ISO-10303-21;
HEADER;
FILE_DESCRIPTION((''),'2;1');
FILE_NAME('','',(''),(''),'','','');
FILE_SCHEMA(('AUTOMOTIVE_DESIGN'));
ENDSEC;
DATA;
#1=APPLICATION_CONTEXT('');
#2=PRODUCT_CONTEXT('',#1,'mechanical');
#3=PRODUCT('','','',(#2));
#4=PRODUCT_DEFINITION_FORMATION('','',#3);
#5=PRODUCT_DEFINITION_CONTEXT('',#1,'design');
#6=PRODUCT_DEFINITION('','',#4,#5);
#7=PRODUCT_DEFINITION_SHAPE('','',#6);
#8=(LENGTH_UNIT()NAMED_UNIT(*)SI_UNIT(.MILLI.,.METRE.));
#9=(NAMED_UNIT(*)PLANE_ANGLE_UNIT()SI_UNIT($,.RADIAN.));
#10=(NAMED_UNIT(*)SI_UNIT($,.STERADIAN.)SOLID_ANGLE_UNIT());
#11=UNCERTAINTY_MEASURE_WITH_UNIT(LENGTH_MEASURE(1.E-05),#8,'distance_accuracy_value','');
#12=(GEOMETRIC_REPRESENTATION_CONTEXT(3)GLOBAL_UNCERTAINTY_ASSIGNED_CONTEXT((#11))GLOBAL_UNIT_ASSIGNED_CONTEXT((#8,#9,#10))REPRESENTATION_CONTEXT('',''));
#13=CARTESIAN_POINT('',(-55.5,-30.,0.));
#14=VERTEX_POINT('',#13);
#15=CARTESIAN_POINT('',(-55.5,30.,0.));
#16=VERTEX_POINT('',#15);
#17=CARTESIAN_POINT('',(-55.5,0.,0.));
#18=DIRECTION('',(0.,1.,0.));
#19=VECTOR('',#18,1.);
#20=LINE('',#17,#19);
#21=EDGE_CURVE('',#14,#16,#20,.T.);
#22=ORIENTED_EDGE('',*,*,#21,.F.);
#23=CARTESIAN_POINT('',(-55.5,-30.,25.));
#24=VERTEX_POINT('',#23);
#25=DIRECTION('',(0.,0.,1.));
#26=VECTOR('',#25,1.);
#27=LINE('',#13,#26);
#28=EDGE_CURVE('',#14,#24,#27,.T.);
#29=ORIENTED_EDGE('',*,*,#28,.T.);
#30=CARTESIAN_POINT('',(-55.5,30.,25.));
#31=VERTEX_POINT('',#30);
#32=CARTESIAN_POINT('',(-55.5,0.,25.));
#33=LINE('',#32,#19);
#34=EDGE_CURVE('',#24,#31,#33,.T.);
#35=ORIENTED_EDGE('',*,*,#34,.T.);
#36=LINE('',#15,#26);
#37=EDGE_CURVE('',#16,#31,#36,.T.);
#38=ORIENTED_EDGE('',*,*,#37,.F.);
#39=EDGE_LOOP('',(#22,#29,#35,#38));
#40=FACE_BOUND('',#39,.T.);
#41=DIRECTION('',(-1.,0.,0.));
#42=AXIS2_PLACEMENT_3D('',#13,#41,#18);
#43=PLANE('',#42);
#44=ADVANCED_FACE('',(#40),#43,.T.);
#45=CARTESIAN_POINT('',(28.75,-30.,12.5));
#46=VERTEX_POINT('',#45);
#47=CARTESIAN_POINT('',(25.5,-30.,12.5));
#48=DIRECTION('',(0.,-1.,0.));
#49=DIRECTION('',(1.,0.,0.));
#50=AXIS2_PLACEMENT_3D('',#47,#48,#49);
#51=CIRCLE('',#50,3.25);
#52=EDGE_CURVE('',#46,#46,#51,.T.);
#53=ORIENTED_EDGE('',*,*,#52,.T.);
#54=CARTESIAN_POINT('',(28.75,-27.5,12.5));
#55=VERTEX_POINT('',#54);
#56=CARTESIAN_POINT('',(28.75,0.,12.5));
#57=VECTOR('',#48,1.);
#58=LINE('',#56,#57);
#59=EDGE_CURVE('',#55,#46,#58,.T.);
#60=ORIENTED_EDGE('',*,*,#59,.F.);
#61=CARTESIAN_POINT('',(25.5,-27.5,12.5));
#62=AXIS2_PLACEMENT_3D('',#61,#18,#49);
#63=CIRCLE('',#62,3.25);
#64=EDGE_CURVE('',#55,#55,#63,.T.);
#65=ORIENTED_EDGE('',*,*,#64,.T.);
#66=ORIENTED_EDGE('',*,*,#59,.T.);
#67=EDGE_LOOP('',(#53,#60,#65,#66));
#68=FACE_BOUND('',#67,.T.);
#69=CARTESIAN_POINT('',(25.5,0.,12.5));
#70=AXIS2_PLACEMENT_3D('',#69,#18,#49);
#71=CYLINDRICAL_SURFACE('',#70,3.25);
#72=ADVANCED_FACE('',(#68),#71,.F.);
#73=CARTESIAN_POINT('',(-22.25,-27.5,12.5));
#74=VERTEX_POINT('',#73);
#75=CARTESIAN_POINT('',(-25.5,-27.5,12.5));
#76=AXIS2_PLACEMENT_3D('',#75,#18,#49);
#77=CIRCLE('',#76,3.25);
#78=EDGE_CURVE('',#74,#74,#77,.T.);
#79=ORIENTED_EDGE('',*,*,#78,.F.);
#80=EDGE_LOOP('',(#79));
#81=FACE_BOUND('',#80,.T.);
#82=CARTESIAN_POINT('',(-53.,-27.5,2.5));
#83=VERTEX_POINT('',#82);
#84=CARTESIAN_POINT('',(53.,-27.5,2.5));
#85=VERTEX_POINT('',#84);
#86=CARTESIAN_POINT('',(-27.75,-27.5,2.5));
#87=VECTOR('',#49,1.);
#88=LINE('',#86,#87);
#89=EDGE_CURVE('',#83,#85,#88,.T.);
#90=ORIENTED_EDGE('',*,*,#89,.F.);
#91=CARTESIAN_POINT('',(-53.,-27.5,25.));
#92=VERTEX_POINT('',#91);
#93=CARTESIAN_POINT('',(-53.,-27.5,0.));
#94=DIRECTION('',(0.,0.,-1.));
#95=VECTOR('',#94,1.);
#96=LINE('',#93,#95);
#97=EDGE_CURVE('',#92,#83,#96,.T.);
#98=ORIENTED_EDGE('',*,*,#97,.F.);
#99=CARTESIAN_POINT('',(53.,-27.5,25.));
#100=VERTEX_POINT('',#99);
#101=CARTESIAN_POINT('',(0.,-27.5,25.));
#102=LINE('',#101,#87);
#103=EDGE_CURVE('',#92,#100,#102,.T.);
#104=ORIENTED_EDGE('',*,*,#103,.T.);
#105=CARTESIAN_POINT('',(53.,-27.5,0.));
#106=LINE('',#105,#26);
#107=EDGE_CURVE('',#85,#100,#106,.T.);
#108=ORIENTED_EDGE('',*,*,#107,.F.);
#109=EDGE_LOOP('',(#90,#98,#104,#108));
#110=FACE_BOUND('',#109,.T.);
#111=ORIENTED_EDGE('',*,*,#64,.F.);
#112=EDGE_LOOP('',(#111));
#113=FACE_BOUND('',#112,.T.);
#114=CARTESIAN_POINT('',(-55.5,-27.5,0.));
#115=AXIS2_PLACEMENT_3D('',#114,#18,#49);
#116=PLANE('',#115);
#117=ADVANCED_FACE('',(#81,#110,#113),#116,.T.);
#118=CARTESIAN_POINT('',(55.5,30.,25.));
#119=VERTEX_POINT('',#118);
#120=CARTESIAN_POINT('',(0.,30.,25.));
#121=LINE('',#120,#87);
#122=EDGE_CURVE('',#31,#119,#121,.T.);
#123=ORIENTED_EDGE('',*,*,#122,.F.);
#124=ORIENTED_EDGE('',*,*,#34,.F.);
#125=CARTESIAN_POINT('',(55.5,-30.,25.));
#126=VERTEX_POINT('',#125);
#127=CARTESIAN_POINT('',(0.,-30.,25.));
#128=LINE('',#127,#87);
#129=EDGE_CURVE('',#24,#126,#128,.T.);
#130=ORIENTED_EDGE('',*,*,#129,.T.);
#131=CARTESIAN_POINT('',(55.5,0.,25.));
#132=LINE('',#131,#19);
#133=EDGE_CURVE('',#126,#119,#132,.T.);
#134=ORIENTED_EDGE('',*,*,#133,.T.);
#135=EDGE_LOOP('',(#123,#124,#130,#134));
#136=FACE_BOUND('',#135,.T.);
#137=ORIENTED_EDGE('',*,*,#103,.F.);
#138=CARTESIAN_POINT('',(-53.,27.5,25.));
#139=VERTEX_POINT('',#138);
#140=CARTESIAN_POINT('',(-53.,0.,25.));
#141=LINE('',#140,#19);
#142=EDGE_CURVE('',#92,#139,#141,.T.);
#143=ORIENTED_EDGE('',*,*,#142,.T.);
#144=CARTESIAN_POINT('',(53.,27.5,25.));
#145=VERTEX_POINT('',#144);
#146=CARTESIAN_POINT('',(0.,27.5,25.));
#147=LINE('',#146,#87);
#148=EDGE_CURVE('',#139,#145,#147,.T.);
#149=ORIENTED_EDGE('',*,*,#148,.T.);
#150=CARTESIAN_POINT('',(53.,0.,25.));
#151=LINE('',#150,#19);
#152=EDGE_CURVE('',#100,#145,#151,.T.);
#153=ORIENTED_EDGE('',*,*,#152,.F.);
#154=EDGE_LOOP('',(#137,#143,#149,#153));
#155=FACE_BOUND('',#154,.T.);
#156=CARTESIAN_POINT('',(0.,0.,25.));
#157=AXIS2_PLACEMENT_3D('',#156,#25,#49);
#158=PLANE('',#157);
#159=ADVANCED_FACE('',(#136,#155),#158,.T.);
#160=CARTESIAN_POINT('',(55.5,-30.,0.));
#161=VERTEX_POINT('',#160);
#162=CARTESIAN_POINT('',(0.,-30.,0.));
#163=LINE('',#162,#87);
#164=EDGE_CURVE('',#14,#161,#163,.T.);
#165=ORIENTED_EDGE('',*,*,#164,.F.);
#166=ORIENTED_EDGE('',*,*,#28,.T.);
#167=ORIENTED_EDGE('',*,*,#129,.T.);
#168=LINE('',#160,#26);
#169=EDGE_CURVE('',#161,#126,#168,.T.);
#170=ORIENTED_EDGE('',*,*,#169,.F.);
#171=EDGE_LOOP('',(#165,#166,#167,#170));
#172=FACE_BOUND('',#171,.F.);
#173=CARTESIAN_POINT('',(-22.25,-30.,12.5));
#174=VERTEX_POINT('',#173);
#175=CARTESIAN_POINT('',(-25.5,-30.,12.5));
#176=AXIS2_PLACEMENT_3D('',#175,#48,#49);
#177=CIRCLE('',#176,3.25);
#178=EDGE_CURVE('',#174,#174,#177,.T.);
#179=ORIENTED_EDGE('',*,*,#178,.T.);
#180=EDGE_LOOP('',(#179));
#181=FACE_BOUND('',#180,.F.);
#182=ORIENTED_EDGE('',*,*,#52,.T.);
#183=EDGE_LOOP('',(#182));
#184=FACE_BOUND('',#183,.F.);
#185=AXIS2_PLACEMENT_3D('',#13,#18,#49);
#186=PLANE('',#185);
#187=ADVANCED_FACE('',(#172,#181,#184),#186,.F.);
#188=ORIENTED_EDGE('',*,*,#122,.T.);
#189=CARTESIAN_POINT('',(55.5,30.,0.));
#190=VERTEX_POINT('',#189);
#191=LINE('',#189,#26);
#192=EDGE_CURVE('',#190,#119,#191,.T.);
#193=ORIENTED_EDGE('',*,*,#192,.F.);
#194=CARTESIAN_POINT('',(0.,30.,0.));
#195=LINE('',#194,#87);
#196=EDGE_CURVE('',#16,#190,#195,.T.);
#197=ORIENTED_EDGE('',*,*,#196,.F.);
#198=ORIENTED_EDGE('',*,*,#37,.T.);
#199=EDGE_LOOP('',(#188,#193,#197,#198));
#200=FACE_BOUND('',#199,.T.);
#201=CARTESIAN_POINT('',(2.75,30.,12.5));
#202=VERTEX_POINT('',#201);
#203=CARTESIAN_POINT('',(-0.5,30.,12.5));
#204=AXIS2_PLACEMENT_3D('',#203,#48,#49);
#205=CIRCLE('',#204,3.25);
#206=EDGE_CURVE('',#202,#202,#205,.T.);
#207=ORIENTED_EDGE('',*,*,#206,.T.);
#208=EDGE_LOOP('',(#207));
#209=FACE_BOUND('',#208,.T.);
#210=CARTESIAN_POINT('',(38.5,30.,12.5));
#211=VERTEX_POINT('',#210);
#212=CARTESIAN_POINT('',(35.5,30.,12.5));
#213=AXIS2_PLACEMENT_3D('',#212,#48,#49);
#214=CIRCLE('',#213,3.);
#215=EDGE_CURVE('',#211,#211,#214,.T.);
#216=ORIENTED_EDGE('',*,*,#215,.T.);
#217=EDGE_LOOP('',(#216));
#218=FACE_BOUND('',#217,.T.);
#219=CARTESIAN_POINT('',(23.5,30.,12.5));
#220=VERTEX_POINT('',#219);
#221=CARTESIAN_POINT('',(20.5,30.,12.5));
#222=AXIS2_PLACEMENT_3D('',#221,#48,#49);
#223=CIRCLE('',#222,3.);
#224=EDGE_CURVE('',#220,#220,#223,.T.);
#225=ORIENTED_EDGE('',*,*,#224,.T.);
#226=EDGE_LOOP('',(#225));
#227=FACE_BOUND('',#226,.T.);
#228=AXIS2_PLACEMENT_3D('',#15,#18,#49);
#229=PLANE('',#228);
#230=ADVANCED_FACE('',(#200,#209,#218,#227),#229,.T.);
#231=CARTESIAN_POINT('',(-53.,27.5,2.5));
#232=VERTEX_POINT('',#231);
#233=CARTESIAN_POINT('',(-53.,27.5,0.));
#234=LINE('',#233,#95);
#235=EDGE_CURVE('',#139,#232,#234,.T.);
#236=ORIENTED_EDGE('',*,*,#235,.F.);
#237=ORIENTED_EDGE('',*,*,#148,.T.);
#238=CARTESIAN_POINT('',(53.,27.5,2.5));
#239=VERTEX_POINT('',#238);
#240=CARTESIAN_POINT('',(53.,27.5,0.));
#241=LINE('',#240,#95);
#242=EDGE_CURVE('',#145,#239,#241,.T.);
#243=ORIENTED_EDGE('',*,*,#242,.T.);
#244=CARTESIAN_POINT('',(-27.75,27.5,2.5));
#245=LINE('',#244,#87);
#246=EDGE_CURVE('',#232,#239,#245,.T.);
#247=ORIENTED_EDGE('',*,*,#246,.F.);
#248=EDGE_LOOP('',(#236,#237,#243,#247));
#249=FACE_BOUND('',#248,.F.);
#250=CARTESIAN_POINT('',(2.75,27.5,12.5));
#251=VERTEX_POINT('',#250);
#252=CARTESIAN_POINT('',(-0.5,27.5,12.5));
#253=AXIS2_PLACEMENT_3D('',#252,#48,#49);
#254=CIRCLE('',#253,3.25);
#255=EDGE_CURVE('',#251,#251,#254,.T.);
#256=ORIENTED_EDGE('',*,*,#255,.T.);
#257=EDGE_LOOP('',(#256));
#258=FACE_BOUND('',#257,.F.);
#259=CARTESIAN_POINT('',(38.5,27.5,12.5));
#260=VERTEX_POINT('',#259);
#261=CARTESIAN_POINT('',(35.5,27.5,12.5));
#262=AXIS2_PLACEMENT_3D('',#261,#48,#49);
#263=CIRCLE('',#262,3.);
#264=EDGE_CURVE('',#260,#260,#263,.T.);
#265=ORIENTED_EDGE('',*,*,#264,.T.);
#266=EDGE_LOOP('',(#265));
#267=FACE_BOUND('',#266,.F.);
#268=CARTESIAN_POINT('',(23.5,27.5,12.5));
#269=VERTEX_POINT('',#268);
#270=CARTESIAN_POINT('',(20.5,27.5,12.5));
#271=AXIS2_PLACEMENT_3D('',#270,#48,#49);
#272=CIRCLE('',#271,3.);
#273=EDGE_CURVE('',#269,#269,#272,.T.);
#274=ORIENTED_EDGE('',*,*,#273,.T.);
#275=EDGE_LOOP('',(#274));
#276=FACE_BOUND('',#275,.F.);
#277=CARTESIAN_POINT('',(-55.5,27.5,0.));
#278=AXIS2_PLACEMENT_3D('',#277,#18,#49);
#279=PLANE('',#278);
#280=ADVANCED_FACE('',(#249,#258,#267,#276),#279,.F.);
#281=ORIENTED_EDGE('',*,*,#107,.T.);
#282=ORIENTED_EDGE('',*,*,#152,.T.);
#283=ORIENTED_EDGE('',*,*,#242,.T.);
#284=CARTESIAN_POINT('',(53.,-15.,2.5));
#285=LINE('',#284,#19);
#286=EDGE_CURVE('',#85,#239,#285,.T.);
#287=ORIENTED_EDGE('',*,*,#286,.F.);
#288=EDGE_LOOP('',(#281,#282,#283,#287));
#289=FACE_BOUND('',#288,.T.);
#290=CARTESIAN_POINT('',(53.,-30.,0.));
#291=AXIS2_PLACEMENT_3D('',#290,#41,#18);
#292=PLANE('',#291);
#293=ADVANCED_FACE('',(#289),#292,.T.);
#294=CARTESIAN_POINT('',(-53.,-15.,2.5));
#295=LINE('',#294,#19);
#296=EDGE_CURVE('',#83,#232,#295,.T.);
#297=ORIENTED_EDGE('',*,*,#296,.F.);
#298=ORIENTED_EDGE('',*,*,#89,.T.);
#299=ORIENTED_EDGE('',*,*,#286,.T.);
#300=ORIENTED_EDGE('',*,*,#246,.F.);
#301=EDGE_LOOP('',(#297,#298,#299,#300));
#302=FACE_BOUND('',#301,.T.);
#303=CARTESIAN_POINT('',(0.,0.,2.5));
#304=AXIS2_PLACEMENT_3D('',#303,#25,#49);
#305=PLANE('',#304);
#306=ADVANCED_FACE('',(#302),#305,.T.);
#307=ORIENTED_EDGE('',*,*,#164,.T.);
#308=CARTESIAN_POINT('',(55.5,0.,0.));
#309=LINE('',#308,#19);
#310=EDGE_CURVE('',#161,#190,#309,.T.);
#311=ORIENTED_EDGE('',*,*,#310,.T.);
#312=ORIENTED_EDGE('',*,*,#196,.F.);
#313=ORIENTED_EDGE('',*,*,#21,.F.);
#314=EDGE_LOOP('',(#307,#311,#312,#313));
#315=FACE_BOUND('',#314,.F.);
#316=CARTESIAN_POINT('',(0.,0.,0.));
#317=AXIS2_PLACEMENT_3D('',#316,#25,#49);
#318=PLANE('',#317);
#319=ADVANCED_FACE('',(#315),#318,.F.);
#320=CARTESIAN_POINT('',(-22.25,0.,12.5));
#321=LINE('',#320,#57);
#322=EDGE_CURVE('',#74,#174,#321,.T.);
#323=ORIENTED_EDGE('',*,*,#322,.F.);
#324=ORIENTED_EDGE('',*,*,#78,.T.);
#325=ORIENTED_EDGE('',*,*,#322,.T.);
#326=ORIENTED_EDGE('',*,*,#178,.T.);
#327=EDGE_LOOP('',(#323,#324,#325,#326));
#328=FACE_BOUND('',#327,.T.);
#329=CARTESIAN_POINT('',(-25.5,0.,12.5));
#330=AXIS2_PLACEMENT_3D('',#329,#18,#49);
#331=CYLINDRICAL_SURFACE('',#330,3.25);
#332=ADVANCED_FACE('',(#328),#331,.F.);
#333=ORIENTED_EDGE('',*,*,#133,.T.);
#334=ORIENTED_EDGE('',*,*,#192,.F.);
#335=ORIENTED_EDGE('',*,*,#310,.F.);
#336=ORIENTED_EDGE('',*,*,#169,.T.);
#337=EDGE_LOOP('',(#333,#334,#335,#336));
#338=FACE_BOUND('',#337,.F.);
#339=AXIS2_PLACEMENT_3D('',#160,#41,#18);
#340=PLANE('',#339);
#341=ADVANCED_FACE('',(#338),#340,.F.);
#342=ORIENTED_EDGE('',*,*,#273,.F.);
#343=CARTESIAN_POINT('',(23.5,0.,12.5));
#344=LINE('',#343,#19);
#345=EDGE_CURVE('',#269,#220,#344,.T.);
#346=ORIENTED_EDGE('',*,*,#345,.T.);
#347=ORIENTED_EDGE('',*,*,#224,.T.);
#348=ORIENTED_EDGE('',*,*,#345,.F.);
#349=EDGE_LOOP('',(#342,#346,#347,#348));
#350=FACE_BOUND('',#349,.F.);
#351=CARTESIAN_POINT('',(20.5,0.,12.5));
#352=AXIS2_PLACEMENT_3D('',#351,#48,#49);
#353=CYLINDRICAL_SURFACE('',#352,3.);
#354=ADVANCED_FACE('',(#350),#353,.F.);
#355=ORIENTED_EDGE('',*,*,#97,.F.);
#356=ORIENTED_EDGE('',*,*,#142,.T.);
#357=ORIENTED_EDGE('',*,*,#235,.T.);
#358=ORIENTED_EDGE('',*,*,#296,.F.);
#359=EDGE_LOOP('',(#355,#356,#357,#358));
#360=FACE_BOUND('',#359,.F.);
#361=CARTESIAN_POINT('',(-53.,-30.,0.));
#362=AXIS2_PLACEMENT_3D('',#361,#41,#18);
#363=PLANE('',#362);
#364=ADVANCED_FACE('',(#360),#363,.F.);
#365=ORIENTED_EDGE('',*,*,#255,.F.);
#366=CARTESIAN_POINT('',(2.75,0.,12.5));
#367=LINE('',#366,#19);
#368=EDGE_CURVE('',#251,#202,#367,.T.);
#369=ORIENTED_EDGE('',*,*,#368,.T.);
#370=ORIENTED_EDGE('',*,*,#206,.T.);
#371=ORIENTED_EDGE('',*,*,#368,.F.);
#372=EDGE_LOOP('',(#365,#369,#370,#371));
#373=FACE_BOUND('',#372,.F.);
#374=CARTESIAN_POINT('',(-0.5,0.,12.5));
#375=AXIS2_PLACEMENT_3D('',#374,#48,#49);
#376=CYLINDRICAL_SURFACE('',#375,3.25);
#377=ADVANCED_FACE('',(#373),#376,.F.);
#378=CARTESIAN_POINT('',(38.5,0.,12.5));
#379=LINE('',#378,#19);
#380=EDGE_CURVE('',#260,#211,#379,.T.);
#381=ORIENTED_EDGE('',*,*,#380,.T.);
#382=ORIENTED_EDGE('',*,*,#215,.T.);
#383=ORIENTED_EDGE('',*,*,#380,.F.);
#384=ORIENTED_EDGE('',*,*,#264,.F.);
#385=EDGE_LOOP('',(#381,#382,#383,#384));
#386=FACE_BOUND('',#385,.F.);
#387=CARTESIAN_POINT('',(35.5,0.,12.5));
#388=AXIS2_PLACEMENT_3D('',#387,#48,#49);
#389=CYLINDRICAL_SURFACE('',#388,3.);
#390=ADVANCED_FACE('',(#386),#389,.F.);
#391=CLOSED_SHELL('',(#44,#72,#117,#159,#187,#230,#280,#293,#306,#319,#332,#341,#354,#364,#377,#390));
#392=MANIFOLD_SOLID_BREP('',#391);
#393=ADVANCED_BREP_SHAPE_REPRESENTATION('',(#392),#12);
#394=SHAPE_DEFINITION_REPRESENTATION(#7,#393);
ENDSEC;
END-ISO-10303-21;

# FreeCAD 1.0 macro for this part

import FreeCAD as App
import Part
import Sketcher

V = App.Vector
Q = App.Units.Quantity


def faces_at(feature, points):
    """Names of the faces that lie closest to the given points."""
    faces = feature.Shape.Faces
    near = lambda p: min(range(len(faces)), key=lambda i: faces[i].distToShape(Part.Vertex(*p))[0])
    return sorted({f"Face{near(p) + 1}" for p in points})


def add_polygon(sketch, points):
    """Adds a closed chain of lines whose ends are joined by coincident constraints."""
    first, n = sketch.GeometryCount, len(points)
    for a, b in zip(points, points[1:] + points[:1]):
        sketch.addGeometry(Part.LineSegment(App.Vector(*a, 0), App.Vector(*b, 0)), False)
    for i in range(n):
        sketch.addConstraint(Sketcher.Constraint("Coincident", first + i, 2, first + (i + 1) % n, 1))

doc = App.newDocument("Part")
body = doc.addObject("PartDesign::Body", "Body")

# Sketch on XY plane
sketch1 = body.newObject("Sketcher::SketchObject", "Sketch")
sketch1.AttachmentSupport = (doc.getObject("XY_Plane"), [""])
sketch1.MapMode = "FlatFace"
add_polygon(sketch1, [(-56, 30), (-56, -30), (56, -30), (56, 30)])  # lines 0-3
sketch1.addConstraint(Sketcher.Constraint("Vertical", 0))
sketch1.addConstraint(Sketcher.Constraint("Horizontal", 1))
sketch1.addConstraint(Sketcher.Constraint("Vertical", 2))
sketch1.addConstraint(Sketcher.Constraint("Horizontal", 3))
sketch1.addConstraint(Sketcher.Constraint("Symmetric", 0, 2, 2, 2, -1, 1))
sketch1.addConstraint(Sketcher.Constraint("DistanceX", 1, 1, 1, 2, Q("111 mm")))
sketch1.addConstraint(Sketcher.Constraint("DistanceY", 0, 2, 0, 1, Q("60 mm")))
pad1 = body.newObject("PartDesign::Pad", "Pad")
pad1.Profile = sketch1
pad1.Length = 25
doc.recompute()

thickness = body.newObject("PartDesign::Thickness", "Thickness")
thickness.Base = (pad1, faces_at(pad1, [(0, 0, 25)]))
thickness.Value = 2.5
thickness.Reversed = True
thickness.Join = "Arc"

# Sketch on XZ plane
sketch2 = body.newObject("Sketcher::SketchObject", "Sketch001")
sketch2.AttachmentSupport = (doc.getObject("XZ_Plane"), [""])
sketch2.MapMode = "FlatFace"
sketch2.addGeometry(Part.Circle(V(-25.5, 12.5, 0), V(0, 0, 1), 3.2), False)
sketch2.addGeometry(Part.Circle(V(25.5, 12.5, 0), V(0, 0, 1), 3.2), False)
sketch2.addConstraint(Sketcher.Constraint("Equal", 0, 1))
sketch2.addConstraint(Sketcher.Constraint("Symmetric", 0, 3, 1, 3, -2))
sketch2.addConstraint(Sketcher.Constraint("Diameter", 0, Q("6.5 mm")))
sketch2.addConstraint(Sketcher.Constraint("DistanceX", 0, 3, 1, 3, Q("51 mm")))
sketch2.addConstraint(Sketcher.Constraint("DistanceY", -1, 1, 0, 3, Q("12.5 mm")))
pocket1 = body.newObject("PartDesign::Pocket", "Pocket")
pocket1.Profile = sketch2
pocket1.Type = "ThroughAll"
pocket1.Reversed = True

# Sketch on XZ plane
sketch3 = body.newObject("Sketcher::SketchObject", "Sketch002")
sketch3.AttachmentSupport = (doc.getObject("XZ_Plane"), [""])
sketch3.MapMode = "FlatFace"
sketch3.addGeometry(Part.Circle(V(-0.5, 12.5, 0), V(0, 0, 1), 3.2), False)
sketch3.addGeometry(Part.Circle(V(20.5, 12.5, 0), V(0, 0, 1), 3), False)
sketch3.addGeometry(Part.Circle(V(35.5, 12.5, 0), V(0, 0, 1), 3), False)
sketch3.addConstraint(Sketcher.Constraint("Equal", 1, 2))
sketch3.addConstraint(Sketcher.Constraint("Horizontal", 0, 3, 1, 3))
sketch3.addConstraint(Sketcher.Constraint("Horizontal", 1, 3, 2, 3))
sketch3.addConstraint(Sketcher.Constraint("Diameter", 1, Q("6 mm")))
sketch3.addConstraint(Sketcher.Constraint("Diameter", 0, Q("6.5 mm")))
sketch3.addConstraint(Sketcher.Constraint("DistanceX", 0, 3, 1, 3, Q("21 mm")))
sketch3.addConstraint(Sketcher.Constraint("DistanceX", 1, 3, 2, 3, Q("15 mm")))
sketch3.addConstraint(Sketcher.Constraint("DistanceX", 0, 3, -1, 1, Q("0.5 mm")))
sketch3.addConstraint(Sketcher.Constraint("DistanceY", -1, 1, 0, 3, Q("12.5 mm")))
pocket2 = body.newObject("PartDesign::Pocket", "Pocket001")
pocket2.Profile = sketch3
pocket2.Type = "ThroughAll"

doc.recompute()
